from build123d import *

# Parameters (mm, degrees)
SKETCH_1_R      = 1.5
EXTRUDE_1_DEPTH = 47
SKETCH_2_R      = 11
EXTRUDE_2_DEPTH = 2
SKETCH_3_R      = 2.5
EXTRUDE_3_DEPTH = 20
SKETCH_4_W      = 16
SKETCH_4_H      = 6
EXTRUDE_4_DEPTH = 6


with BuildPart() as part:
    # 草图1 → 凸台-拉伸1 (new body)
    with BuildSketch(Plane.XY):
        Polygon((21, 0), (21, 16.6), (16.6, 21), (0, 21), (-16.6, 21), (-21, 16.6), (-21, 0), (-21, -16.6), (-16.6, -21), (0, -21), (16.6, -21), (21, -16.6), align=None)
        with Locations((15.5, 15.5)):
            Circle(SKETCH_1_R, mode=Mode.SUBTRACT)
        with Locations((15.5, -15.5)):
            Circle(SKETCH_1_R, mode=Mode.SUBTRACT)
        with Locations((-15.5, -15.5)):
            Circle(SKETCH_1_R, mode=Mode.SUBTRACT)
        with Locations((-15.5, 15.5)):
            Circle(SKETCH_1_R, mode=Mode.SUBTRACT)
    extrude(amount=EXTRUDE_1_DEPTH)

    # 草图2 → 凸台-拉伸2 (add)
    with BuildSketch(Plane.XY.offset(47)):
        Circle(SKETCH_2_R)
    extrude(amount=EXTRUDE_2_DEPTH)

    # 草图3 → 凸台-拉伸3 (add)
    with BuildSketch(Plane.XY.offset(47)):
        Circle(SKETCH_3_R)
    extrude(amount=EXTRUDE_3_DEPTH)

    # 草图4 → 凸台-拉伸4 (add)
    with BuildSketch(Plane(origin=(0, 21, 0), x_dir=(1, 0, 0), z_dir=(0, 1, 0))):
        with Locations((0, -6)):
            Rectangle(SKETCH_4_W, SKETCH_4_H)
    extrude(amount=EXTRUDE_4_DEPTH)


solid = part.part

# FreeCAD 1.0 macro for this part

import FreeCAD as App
import Part
import Sketcher

V = App.Vector

doc = App.newDocument("Part")
body = doc.addObject("PartDesign::Body", "Body")

# Sketch on XY plane
sketch1 = body.newObject("Sketcher::SketchObject", "Sketch")
sketch1.AttachmentSupport = (doc.getObject("XY_Plane"), [""])
sketch1.MapMode = "FlatFace"
sketch1.addGeometry([
    Part.LineSegment(V(21, 16.6, 0), V(16.6, 21, 0)),  # 0
    Part.LineSegment(V(16.6, 21, 0), V(-16.6, 21, 0)),  # 1
    Part.LineSegment(V(-16.6, 21, 0), V(-21, 16.6, 0)),  # 2
    Part.LineSegment(V(-21, 16.6, 0), V(-21, -16.6, 0)),  # 3
    Part.LineSegment(V(-21, -16.6, 0), V(-16.6, -21, 0)),  # 4
    Part.LineSegment(V(-16.6, -21, 0), V(16.6, -21, 0)),  # 5
    Part.LineSegment(V(16.6, -21, 0), V(21, -16.6, 0)),  # 6
    Part.LineSegment(V(21, -16.6, 0), V(21, 16.6, 0)),  # 7
    Part.Circle(V(-15.5, -15.5, 0), V(0, 0, 1), 1.5),  # 8
    Part.Circle(V(15.5, -15.5, 0), V(0, 0, 1), 1.5),  # 9
    Part.Circle(V(-15.5, 15.5, 0), V(0, 0, 1), 1.5),  # 10
    Part.Circle(V(15.5, 15.5, 0), V(0, 0, 1), 1.5),  # 11
], False)
sketch1.addConstraint([
    Sketcher.Constraint("Coincident", 0, 2, 1, 1),
    Sketcher.Constraint("Coincident", 1, 2, 2, 1),
    Sketcher.Constraint("Coincident", 2, 2, 3, 1),
    Sketcher.Constraint("Coincident", 3, 2, 4, 1),
    Sketcher.Constraint("Coincident", 4, 2, 5, 1),
    Sketcher.Constraint("Coincident", 5, 2, 6, 1),
    Sketcher.Constraint("Coincident", 6, 2, 7, 1),
    Sketcher.Constraint("Coincident", 7, 2, 0, 1),
    Sketcher.Constraint("Horizontal", 1),
    Sketcher.Constraint("Vertical", 3),
    Sketcher.Constraint("Horizontal", 5),
    Sketcher.Constraint("Vertical", 7),
    Sketcher.Constraint("Equal", 8, 9),
    Sketcher.Constraint("Equal", 9, 10),
    Sketcher.Constraint("Equal", 10, 11),
    Sketcher.Constraint("Symmetric", 9, 3, 10, 3, -1, 1),
    Sketcher.Constraint("Symmetric", 8, 3, 11, 3, -1, 1),
    Sketcher.Constraint("Symmetric", 0, 2, 4, 2, -1, 1),
    Sketcher.Constraint("Symmetric", 2, 2, 6, 2, -1, 1),
    Sketcher.Constraint("Symmetric", 8, 3, 9, 3, -2),
    Sketcher.Constraint("Perpendicular", 0, 2),
    Sketcher.Constraint("Perpendicular", 2, 4),
    Sketcher.Constraint("Perpendicular", 4, 6),
    Sketcher.Constraint("Horizontal", 3, 2, 6, 2),
    Sketcher.Constraint("Vertical", 1, 2, 4, 2),
    Sketcher.Constraint("Equal", 5, 3),
    Sketcher.Constraint("Diameter", 8, 3.0),
    Sketcher.Constraint("DistanceX", 1, 2, 1, 1, 33.2),
    Sketcher.Constraint("DistanceY", -1, 1, 0, 2, 21.0),
    Sketcher.Constraint("DistanceX", 8, 3, 9, 3, 31.0),
    Sketcher.Constraint("DistanceY", 8, 3, 10, 3, 31.0),
])
pad1 = body.newObject("PartDesign::Pad", "Pad")
pad1.Profile = sketch1
pad1.Length = 47

# Sketch on XY plane
sketch2 = body.newObject("Sketcher::SketchObject", "Sketch001")
sketch2.AttachmentSupport = (doc.getObject("XY_Plane"), [""])
sketch2.MapMode = "FlatFace"
sketch2.AttachmentOffset = App.Placement(V(0, 0, 47), App.Rotation())
sketch2.addGeometry(Part.Circle(V(0, 0, 0), V(0, 0, 1), 11), False)
sketch2.addConstraint([
    Sketcher.Constraint("Coincident", 0, 3, -1, 1),
    Sketcher.Constraint("Diameter", 0, 22.0),
])
pad2 = body.newObject("PartDesign::Pad", "Pad001")
pad2.Profile = sketch2
pad2.Length = 2

# Sketch on XY plane
sketch3 = body.newObject("Sketcher::SketchObject", "Sketch002")
sketch3.AttachmentSupport = (doc.getObject("XY_Plane"), [""])
sketch3.MapMode = "FlatFace"
sketch3.AttachmentOffset = App.Placement(V(0, 0, 47), App.Rotation())
sketch3.addGeometry(Part.Circle(V(0, 0, 0), V(0, 0, 1), 2.5), False)
sketch3.addConstraint([
    Sketcher.Constraint("Coincident", 0, 3, -1, 1),
    Sketcher.Constraint("Diameter", 0, 5.0),
])
pad3 = body.newObject("PartDesign::Pad", "Pad002")
pad3.Profile = sketch3
pad3.Length = 20

# Sketch on XZ plane
sketch4 = body.newObject("Sketcher::SketchObject", "Sketch003")
sketch4.AttachmentSupport = (doc.getObject("XZ_Plane"), [""])
sketch4.MapMode = "FlatFace"
sketch4.AttachmentOffset = App.Placement(V(0, 0, -21), App.Rotation())
sketch4.addGeometry([
    Part.LineSegment(V(-8, 3, 0), V(-8, 9, 0)),
    Part.LineSegment(V(-8, 9, 0), V(8, 9, 0)),
    Part.LineSegment(V(8, 9, 0), V(8, 3, 0)),
    Part.LineSegment(V(8, 3, 0), V(-8, 3, 0)),
], False)
sketch4.addConstraint([
    Sketcher.Constraint("Coincident", 0, 2, 1, 1),
    Sketcher.Constraint("Coincident", 1, 2, 2, 1),
    Sketcher.Constraint("Coincident", 2, 2, 3, 1),
    Sketcher.Constraint("Coincident", 3, 2, 0, 1),
    Sketcher.Constraint("Vertical", 0),
    Sketcher.Constraint("Horizontal", 1),
    Sketcher.Constraint("Vertical", 2),
    Sketcher.Constraint("Horizontal", 3),
    Sketcher.Constraint("DistanceX", 1, 1, 1, 2, 16.0),
    Sketcher.Constraint("DistanceY", 0, 1, 0, 2, 6.0),
    Sketcher.Constraint("DistanceX", 0, 2, -1, 1, 8.0),
    Sketcher.Constraint("DistanceY", -1, 1, 0, 2, 9.0),
])
pad4 = body.newObject("PartDesign::Pad", "Pad003")
pad4.Profile = sketch4
pad4.Length = 6
pad4.Reversed = True

doc.recompute()
